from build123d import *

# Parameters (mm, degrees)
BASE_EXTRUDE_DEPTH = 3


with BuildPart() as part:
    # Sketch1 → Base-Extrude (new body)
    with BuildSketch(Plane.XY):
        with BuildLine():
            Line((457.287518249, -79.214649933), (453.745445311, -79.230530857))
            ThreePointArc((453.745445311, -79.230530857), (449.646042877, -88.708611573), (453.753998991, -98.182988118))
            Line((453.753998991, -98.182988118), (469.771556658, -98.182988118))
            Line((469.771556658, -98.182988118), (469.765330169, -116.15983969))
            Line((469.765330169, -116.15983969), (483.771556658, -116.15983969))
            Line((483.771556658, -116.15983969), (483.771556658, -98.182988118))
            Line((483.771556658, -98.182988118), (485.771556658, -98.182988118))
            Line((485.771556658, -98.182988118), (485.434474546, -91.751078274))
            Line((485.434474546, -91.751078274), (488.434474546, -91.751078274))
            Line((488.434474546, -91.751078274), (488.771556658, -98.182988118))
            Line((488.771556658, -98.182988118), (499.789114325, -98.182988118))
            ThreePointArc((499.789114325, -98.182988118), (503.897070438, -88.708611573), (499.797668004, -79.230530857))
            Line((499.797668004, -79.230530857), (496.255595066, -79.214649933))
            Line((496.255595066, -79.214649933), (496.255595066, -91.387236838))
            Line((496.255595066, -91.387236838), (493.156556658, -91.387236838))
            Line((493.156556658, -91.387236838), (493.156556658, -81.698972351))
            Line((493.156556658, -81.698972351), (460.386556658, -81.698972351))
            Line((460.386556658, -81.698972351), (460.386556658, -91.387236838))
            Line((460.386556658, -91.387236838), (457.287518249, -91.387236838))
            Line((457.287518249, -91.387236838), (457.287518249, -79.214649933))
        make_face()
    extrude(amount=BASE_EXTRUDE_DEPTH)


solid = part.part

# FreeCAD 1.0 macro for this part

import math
import FreeCAD as App
import Part
import Sketcher
from FreeCAD import Vector
Q = App.Units.Quantity

doc = App.newDocument("Part")
body = doc.addObject("PartDesign::Body", "Body")

sketch1 = doc.addObject("Sketcher::SketchObject", "Sketch")
body.addObject(sketch1)
sketch1.AttachmentSupport = (doc.XY_Plane, [""])
sketch1.MapMode = "FlatFace"
sketch1.addGeometry(Part.LineSegment(Vector(457.3, -79.2, 0), Vector(453.7, -79.2, 0)), False)
sketch1.addGeometry(Part.ArcOfCircle(Part.Circle(Vector(462.6, -88.7, 0), Vector(0, 0, 1), 13), math.radians(133), math.radians(227)), False)
sketch1.addGeometry(Part.LineSegment(Vector(453.8, -98.2, 0), Vector(469.8, -98.2, 0)), False)
sketch1.addGeometry(Part.LineSegment(Vector(469.8, -98.2, 0), Vector(469.8, -116.2, 0)), False)
sketch1.addGeometry(Part.LineSegment(Vector(469.8, -116.2, 0), Vector(483.8, -116.2, 0)), False)
sketch1.addGeometry(Part.LineSegment(Vector(483.8, -116.2, 0), Vector(483.8, -98.2, 0)), False)
sketch1.addGeometry(Part.LineSegment(Vector(483.8, -98.2, 0), Vector(485.8, -98.2, 0)), False)
sketch1.addGeometry(Part.LineSegment(Vector(485.8, -98.2, 0), Vector(485.4, -91.8, 0)), False)
sketch1.addGeometry(Part.LineSegment(Vector(485.4, -91.8, 0), Vector(488.4, -91.8, 0)), False)
sketch1.addGeometry(Part.LineSegment(Vector(488.4, -91.8, 0), Vector(488.8, -98.2, 0)), False)
sketch1.addGeometry(Part.LineSegment(Vector(488.8, -98.2, 0), Vector(499.8, -98.2, 0)), False)
sketch1.addGeometry(Part.ArcOfCircle(Part.Circle(Vector(490.9, -88.7, 0), Vector(0, 0, 1), 13), math.radians(-47), math.radians(47)), False)
sketch1.addGeometry(Part.LineSegment(Vector(499.8, -79.2, 0), Vector(496.3, -79.2, 0)), False)
sketch1.addGeometry(Part.LineSegment(Vector(496.3, -79.2, 0), Vector(496.3, -91.4, 0)), False)
sketch1.addGeometry(Part.LineSegment(Vector(496.3, -91.4, 0), Vector(493.2, -91.4, 0)), False)
sketch1.addGeometry(Part.LineSegment(Vector(493.2, -91.4, 0), Vector(493.2, -81.7, 0)), False)
sketch1.addGeometry(Part.LineSegment(Vector(493.2, -81.7, 0), Vector(460.4, -81.7, 0)), False)
sketch1.addGeometry(Part.LineSegment(Vector(460.4, -81.7, 0), Vector(460.4, -91.4, 0)), False)
sketch1.addGeometry(Part.LineSegment(Vector(460.4, -91.4, 0), Vector(457.3, -91.4, 0)), False)
sketch1.addGeometry(Part.LineSegment(Vector(457.3, -91.4, 0), Vector(457.3, -79.2, 0)), False)
sketch1.addConstraint(Sketcher.Constraint("Coincident", 0, 2, 1, 1))
sketch1.addConstraint(Sketcher.Constraint("Coincident", 1, 2, 2, 1))
sketch1.addConstraint(Sketcher.Constraint("Coincident", 2, 2, 3, 1))
sketch1.addConstraint(Sketcher.Constraint("Coincident", 3, 2, 4, 1))
sketch1.addConstraint(Sketcher.Constraint("Coincident", 4, 2, 5, 1))
sketch1.addConstraint(Sketcher.Constraint("Coincident", 5, 2, 6, 1))
sketch1.addConstraint(Sketcher.Constraint("Coincident", 6, 2, 7, 1))
sketch1.addConstraint(Sketcher.Constraint("Coincident", 7, 2, 8, 1))
sketch1.addConstraint(Sketcher.Constraint("Coincident", 8, 2, 9, 1))
sketch1.addConstraint(Sketcher.Constraint("Coincident", 9, 2, 10, 1))
sketch1.addConstraint(Sketcher.Constraint("Coincident", 10, 2, 11, 1))
sketch1.addConstraint(Sketcher.Constraint("Coincident", 11, 2, 12, 1))
sketch1.addConstraint(Sketcher.Constraint("Coincident", 12, 2, 13, 1))
sketch1.addConstraint(Sketcher.Constraint("Coincident", 13, 2, 14, 1))
sketch1.addConstraint(Sketcher.Constraint("Coincident", 14, 2, 15, 1))
sketch1.addConstraint(Sketcher.Constraint("Coincident", 15, 2, 16, 1))
sketch1.addConstraint(Sketcher.Constraint("Coincident", 16, 2, 17, 1))
sketch1.addConstraint(Sketcher.Constraint("Coincident", 17, 2, 18, 1))
sketch1.addConstraint(Sketcher.Constraint("Coincident", 18, 2, 19, 1))
sketch1.addConstraint(Sketcher.Constraint("Coincident", 19, 2, 0, 1))
sketch1.addConstraint(Sketcher.Constraint("Horizontal", 2))
sketch1.addConstraint(Sketcher.Constraint("Horizontal", 4))
sketch1.addConstraint(Sketcher.Constraint("Vertical", 5))
sketch1.addConstraint(Sketcher.Constraint("Horizontal", 6))
sketch1.addConstraint(Sketcher.Constraint("Horizontal", 8))
sketch1.addConstraint(Sketcher.Constraint("Horizontal", 10))
sketch1.addConstraint(Sketcher.Constraint("Vertical", 13))
sketch1.addConstraint(Sketcher.Constraint("Horizontal", 14))
sketch1.addConstraint(Sketcher.Constraint("Vertical", 15))
sketch1.addConstraint(Sketcher.Constraint("Horizontal", 16))
sketch1.addConstraint(Sketcher.Constraint("Vertical", 17))
sketch1.addConstraint(Sketcher.Constraint("Horizontal", 18))
sketch1.addConstraint(Sketcher.Constraint("Vertical", 19))
sketch1.addConstraint(Sketcher.Constraint("Equal", 1, 11))
sketch1.addConstraint(Sketcher.Constraint("Parallel", 7, 9))
sketch1.addConstraint(Sketcher.Constraint("Horizontal", 1, 3, 11, 3))
sketch1.addConstraint(Sketcher.Constraint("Horizontal", 2, 2, 5, 2))
sketch1.addConstraint(Sketcher.Constraint("Horizontal", 6, 2, 9, 2))
sketch1.addConstraint(Sketcher.Constraint("Horizontal", 0, 2, 11, 2))
sketch1.addConstraint(Sketcher.Constraint("Horizontal", 14, 2, 17, 2))
sketch1.addConstraint(Sketcher.Constraint("Horizontal", 12, 2, 19, 2))
sketch1.addConstraint(Sketcher.Constraint("Equal", 14, 18))
sketch1.addConstraint(Sketcher.Constraint("Equal", 0, 12))
sketch1.addConstraint(Sketcher.Constraint("DistanceX", 6, 1, 6, 2, 2.0))
sketch1.addConstraint(Sketcher.Constraint("DistanceX", 8, 1, 8, 2, 3.0))
sketch1.addConstraint(Sketcher.Constraint("Angle", 7, Q("93 deg")))
sketch1.addConstraint(Sketcher.Constraint("DistanceX", 2, 2, 4, 2, 14.0))
sketch1.addConstraint(Sketcher.Constraint("DistanceX", 16, 2, 16, 1, 32.77))
sketch1.addConstraint(Sketcher.Constraint("Radius", 1, 12.993109))
sketch1.addConstraint(Sketcher.Constraint("DistanceX", -1, 1, 1, 2, 453.753999))
sketch1.addConstraint(Sketcher.Constraint("DistanceX", 9, 2, 14, 2, 4.385))
sketch1.addConstraint(Sketcher.Constraint("DistanceX", 14, 2, 14, 1, 3.099038))
sketch1.addConstraint(Sketcher.Constraint("DistanceY", 5, 1, 5, 2, 17.976852))
sketch1.addConstraint(Sketcher.Constraint("Distance", 0, 3.542109))
sketch1.addConstraint(Sketcher.Constraint("DistanceX", 2, 1, 2, 2, 16.017558))
sketch1.addConstraint(Sketcher.Constraint("DistanceX", 4, 1, 4, 2, 14.006226))
sketch1.addConstraint(Sketcher.Constraint("DistanceY", 13, 2, 13, 1, 12.172587))
sketch1.addConstraint(Sketcher.Constraint("DistanceY", 15, 1, 15, 2, 9.688264))
sketch1.addConstraint(Sketcher.Constraint("DistanceX", -1, 1, 1, 3, 462.63915))
sketch1.addConstraint(Sketcher.Constraint("DistanceY", 0, 2, -1, 1, 79.230531))
sketch1.addConstraint(Sketcher.Constraint("DistanceY", 7, 2, -1, 1, 91.751078))
sketch1.addConstraint(Sketcher.Constraint("DistanceY", 12, 2, -1, 1, 79.21465))
pad1 = doc.addObject("PartDesign::Pad", "Pad")
body.addObject(pad1)
pad1.Profile = sketch1
pad1.Length = 3

doc.recompute()
